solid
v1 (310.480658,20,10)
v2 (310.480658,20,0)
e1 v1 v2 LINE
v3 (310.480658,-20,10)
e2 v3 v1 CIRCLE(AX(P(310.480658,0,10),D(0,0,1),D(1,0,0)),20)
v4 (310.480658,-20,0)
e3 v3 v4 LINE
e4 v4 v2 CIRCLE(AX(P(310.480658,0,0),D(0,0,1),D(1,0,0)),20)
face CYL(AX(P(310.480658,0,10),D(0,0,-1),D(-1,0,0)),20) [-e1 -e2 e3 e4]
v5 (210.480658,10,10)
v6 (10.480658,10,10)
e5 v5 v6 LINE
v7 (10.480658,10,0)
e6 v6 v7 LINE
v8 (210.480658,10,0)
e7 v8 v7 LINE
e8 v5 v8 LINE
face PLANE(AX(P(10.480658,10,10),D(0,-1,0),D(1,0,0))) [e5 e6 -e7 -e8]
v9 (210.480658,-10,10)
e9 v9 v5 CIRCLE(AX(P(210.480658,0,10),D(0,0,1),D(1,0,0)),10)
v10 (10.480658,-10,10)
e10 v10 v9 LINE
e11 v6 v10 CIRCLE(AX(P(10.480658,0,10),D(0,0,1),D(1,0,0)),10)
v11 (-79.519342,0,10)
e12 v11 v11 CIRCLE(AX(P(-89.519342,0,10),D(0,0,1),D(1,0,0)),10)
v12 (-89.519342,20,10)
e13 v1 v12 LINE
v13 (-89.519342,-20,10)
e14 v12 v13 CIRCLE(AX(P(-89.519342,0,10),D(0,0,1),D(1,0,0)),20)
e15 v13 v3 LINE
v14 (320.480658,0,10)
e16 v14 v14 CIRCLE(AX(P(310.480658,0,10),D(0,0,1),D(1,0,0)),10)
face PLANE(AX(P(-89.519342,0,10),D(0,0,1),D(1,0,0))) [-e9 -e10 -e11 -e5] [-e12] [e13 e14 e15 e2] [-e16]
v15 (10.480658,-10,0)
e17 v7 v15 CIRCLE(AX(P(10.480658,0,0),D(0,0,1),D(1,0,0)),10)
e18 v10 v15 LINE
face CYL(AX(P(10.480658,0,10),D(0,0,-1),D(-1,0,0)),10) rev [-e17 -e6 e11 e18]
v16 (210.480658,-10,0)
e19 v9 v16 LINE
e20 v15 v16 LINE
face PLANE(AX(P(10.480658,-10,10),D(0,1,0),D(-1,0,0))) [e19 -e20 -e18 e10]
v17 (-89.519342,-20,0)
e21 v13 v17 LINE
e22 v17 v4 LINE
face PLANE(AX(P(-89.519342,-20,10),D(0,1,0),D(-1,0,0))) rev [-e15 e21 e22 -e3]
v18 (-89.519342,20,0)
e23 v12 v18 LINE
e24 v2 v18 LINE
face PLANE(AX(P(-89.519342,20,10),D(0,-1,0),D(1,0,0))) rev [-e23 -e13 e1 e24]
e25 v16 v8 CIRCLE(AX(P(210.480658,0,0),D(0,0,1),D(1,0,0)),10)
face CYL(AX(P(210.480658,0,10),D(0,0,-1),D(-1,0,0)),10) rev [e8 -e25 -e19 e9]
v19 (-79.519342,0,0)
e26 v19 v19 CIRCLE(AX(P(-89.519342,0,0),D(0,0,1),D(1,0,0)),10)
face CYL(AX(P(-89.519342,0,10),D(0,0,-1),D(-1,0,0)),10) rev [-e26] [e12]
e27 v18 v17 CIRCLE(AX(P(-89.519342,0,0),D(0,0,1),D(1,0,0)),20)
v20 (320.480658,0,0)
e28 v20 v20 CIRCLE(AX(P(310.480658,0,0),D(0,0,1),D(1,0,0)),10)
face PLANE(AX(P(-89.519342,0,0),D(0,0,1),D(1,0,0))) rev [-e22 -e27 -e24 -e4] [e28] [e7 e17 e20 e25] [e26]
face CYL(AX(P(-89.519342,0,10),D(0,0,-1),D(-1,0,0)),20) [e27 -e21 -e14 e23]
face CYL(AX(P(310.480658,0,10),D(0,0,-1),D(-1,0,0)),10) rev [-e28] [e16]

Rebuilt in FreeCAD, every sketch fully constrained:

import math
import FreeCAD as App
import Part
import Sketcher
from FreeCAD import Vector
Q = App.Units.Quantity

doc = App.newDocument("Part")
body = doc.addObject("PartDesign::Body", "Body")

sketch1 = doc.addObject("Sketcher::SketchObject", "Sketch")
body.addObject(sketch1)
sketch1.AttachmentSupport = (doc.XY_Plane, [""])
sketch1.MapMode = "FlatFace"
sketch1.addGeometry(Part.LineSegment(Vector(310.480658, 20, 0), Vector(-89.519342, 20, 0)), False)
sketch1.addGeometry(Part.ArcOfCircle(Part.Circle(Vector(-89.519342, 0, 0), Vector(0, 0, 1), 20), math.radians(90), math.radians(270)), False)
sketch1.addGeometry(Part.LineSegment(Vector(-89.519342, -20, 0), Vector(310.480658, -20, 0)), False)
sketch1.addGeometry(Part.ArcOfCircle(Part.Circle(Vector(310.480658, 0, 0), Vector(0, 0, 1), 20), math.radians(-90), math.radians(90)), False)
sketch1.addGeometry(Part.Circle(Vector(310.480658, 0, 0), Vector(0, 0, 1), 10), False)
sketch1.addGeometry(Part.LineSegment(Vector(10.480658, 10, 0), Vector(210.480658, 10, 0)), False)
sketch1.addGeometry(Part.ArcOfCircle(Part.Circle(Vector(210.480658, 0, 0), Vector(0, 0, 1), 10), math.radians(-90), math.radians(90)), False)
sketch1.addGeometry(Part.LineSegment(Vector(210.480658, -10, 0), Vector(10.480658, -10, 0)), False)
sketch1.addGeometry(Part.ArcOfCircle(Part.Circle(Vector(10.480658, 0, 0), Vector(0, 0, 1), 10), math.radians(90), math.radians(270)), False)
sketch1.addGeometry(Part.Circle(Vector(-89.519342, 0, 0), Vector(0, 0, 1), 10), False)
sketch1.addConstraint(Sketcher.Constraint("Tangent", 0, 2, 1, 1))
sketch1.addConstraint(Sketcher.Constraint("Tangent", 1, 2, 2, 1))
sketch1.addConstraint(Sketcher.Constraint("Tangent", 2, 2, 3, 1))
sketch1.addConstraint(Sketcher.Constraint("Tangent", 3, 2, 0, 1))
sketch1.addConstraint(Sketcher.Constraint("Tangent", 5, 2, 6, 2))
sketch1.addConstraint(Sketcher.Constraint("Tangent", 6, 1, 7, 1))
sketch1.addConstraint(Sketcher.Constraint("Tangent", 7, 2, 8, 2))
sketch1.addConstraint(Sketcher.Constraint("Tangent", 8, 1, 5, 1))
sketch1.addConstraint(Sketcher.Constraint("Horizontal", 0))
sketch1.addConstraint(Sketcher.Constraint("Horizontal", 2))
sketch1.addConstraint(Sketcher.Constraint("Horizontal", 5))
sketch1.addConstraint(Sketcher.Constraint("Horizontal", 7))
sketch1.addConstraint(Sketcher.Constraint("Coincident", 4, 3, 3, 3))
sketch1.addConstraint(Sketcher.Constraint("Coincident", 9, 3, 1, 3))
sketch1.addConstraint(Sketcher.Constraint("Equal", 4, 6))
sketch1.addConstraint(Sketcher.Constraint("Equal", 8, 9))
sketch1.addConstraint(Sketcher.Constraint("PointOnObject", 1, 3, -1))
sketch1.addConstraint(Sketcher.Constraint("PointOnObject", 6, 3, -1))
sketch1.addConstraint(Sketcher.Constraint("Diameter", 4, Q("20 mm")))
sketch1.addConstraint(Sketcher.Constraint("Radius", 1, Q("20 mm")))
sketch1.addConstraint(Sketcher.Constraint("DistanceX", 0, 2, 0, 1, Q("400 mm")))
sketch1.addConstraint(Sketcher.Constraint("DistanceX", 5, 1, 5, 2, Q("200 mm")))
sketch1.addConstraint(Sketcher.Constraint("DistanceX", 6, 3, 3, 3, Q("100 mm")))
sketch1.addConstraint(Sketcher.Constraint("DistanceX", 1, 3, -1, 1, Q("89.519342 mm")))
pad1 = doc.addObject("PartDesign::Pad", "Pad")
body.addObject(pad1)
pad1.Profile = sketch1
pad1.Length = 10

doc.recompute()
